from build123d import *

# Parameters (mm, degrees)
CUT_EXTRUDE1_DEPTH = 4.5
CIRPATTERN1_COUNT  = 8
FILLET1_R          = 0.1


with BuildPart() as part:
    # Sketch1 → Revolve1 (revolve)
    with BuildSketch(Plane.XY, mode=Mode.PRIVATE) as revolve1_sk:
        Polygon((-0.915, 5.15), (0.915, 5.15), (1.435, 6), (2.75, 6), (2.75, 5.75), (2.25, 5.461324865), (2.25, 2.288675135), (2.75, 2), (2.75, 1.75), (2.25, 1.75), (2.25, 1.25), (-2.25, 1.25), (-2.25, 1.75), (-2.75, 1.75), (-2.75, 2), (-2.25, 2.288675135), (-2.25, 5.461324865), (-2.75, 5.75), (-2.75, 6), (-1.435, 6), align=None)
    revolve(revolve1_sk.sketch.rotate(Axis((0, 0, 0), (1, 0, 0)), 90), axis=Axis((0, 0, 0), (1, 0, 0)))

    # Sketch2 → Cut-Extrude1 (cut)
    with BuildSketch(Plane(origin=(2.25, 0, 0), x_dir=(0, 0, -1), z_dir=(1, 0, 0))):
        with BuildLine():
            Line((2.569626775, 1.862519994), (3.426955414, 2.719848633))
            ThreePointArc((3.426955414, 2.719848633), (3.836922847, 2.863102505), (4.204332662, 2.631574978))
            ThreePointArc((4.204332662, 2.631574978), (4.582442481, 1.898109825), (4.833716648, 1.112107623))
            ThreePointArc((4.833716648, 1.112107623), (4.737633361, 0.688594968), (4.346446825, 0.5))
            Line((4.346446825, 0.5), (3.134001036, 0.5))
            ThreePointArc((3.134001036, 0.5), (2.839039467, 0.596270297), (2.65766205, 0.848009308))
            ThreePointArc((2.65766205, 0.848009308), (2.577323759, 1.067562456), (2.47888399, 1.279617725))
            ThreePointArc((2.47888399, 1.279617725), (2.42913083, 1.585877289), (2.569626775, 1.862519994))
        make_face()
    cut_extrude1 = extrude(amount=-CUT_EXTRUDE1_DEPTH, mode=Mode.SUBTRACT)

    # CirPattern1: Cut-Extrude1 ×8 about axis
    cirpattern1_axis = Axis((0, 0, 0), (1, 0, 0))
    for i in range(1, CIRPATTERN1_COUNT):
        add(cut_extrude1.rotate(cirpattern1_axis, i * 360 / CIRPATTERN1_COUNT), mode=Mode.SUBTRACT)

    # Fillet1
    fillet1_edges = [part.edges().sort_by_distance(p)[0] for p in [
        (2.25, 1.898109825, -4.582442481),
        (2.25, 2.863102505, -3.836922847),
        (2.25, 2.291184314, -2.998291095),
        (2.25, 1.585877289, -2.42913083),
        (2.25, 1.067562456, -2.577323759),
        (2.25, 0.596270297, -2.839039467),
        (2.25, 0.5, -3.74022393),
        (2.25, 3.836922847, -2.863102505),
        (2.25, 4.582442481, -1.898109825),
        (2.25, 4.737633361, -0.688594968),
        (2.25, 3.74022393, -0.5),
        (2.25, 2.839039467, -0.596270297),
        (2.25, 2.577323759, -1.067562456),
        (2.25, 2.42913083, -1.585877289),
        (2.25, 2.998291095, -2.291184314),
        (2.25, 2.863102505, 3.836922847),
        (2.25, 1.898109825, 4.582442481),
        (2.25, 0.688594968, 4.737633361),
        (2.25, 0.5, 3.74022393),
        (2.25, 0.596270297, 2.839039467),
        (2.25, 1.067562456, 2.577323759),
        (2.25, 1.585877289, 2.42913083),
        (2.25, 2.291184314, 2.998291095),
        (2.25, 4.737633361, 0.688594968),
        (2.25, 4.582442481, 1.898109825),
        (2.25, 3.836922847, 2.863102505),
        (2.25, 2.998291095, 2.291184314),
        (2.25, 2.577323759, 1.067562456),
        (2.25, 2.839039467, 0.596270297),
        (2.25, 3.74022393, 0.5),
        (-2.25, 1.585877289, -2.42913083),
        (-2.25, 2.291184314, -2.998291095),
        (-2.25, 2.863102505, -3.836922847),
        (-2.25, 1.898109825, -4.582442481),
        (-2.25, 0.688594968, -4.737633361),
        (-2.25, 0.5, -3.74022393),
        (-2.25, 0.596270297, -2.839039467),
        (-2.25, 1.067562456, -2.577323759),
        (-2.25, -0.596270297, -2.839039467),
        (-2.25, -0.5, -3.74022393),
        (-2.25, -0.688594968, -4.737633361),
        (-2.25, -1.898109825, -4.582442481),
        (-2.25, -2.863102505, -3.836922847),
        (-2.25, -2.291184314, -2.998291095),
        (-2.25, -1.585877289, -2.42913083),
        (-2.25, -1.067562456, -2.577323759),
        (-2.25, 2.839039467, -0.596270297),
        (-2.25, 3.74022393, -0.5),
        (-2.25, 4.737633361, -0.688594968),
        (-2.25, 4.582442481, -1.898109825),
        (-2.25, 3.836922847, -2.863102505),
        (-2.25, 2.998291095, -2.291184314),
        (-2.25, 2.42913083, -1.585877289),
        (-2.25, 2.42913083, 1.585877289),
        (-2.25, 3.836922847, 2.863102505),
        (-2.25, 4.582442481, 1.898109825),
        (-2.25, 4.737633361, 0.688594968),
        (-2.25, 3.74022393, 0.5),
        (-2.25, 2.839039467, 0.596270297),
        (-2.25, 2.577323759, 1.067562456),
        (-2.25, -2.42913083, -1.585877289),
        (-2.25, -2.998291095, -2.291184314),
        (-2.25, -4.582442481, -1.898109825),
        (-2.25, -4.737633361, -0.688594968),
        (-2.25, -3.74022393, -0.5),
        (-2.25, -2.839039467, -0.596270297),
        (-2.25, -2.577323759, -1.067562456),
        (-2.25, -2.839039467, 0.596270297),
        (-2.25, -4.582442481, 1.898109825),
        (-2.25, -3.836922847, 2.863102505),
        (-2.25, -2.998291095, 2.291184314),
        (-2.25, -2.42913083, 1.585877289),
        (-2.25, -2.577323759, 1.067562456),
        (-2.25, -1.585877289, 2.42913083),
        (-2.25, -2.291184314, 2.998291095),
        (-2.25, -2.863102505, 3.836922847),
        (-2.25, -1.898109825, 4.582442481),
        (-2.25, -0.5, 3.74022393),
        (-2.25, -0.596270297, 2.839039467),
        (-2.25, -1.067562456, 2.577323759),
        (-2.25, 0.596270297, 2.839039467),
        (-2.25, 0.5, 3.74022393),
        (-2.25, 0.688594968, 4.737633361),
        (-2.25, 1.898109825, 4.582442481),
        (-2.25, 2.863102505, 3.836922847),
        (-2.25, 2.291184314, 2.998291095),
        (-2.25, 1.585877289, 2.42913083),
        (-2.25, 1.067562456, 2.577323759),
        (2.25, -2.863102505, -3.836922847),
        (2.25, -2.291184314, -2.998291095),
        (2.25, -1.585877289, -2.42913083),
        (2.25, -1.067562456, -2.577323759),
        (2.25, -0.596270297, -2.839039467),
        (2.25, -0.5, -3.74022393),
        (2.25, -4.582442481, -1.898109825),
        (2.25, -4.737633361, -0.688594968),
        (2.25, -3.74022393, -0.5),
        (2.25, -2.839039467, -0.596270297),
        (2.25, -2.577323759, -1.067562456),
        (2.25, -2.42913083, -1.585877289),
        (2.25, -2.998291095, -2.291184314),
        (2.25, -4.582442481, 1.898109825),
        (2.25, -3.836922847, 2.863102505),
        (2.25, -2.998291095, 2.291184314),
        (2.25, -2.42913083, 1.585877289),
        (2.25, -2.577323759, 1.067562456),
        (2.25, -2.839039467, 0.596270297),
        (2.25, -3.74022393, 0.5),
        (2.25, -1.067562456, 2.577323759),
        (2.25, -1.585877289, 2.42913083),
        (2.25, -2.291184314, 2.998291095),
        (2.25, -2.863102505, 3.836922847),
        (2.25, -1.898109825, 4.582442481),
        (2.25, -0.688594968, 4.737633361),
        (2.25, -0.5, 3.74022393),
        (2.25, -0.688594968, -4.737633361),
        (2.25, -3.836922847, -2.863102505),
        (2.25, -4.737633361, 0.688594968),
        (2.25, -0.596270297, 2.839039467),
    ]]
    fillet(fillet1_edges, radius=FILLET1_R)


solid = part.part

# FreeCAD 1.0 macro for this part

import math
import FreeCAD as App
import Part
import Sketcher
from FreeCAD import Vector
Q = App.Units.Quantity


def edges_at(feature, points):
    """Names of the edges that pass closest to the given points."""
    edges = feature.Shape.Edges
    near = lambda p: min(range(len(edges)), key=lambda i: edges[i].distToShape(Part.Vertex(*p))[0])
    return sorted({f"Edge{near(p) + 1}" for p in points})

doc = App.newDocument("Part")
params = doc.addObject("Spreadsheet::Sheet", "Params")
for row, (alias, value) in enumerate([
    ("sketch1_width", "0.5 mm"),
    ("sketch1_width2", "4.5 mm"),
    ("sketch1_width3", "1.83 mm"),
    ("sketch1_height", "0.25 mm"),
    ("revolution_angle", "360 deg"),
    ("sketch2_radius", "0.5 mm"),
    ("sketch2_radius2", "4.96 mm"),
    ("pocket1_length", "4.5 mm"),
    ("fillet_radius", "0.1 mm"),
], start=1):
    params.set(f"A{row}", alias)
    params.set(f"B{row}", "=" + value)
    params.setAlias(f"B{row}", alias)

body = doc.addObject("PartDesign::Body", "Body")

# Sketch on XY plane
sketch1 = body.newObject("Sketcher::SketchObject", "Sketch")
sketch1.AttachmentSupport = (doc.getObject("XY_Plane"), [""])
sketch1.MapMode = "FlatFace"
sketch1.addGeometry([
    Part.LineSegment(Vector(0.915, 5.15, 0), Vector(-0.915, 5.15, 0)),  # 0
    Part.LineSegment(Vector(-0.915, 5.15, 0), Vector(-1.435, 6, 0)),  # 1
    Part.LineSegment(Vector(-1.435, 6, 0), Vector(-2.75, 6, 0)),  # 2
    Part.LineSegment(Vector(-2.75, 6, 0), Vector(-2.75, 5.75, 0)),  # 3
    Part.LineSegment(Vector(-2.75, 5.75, 0), Vector(-2.25, 5.461325, 0)),  # 4
    Part.LineSegment(Vector(-2.25, 5.461325, 0), Vector(-2.25, 2.288675, 0)),  # 5
    Part.LineSegment(Vector(-2.25, 2.288675, 0), Vector(-2.75, 2, 0)),  # 6
    Part.LineSegment(Vector(-2.75, 2, 0), Vector(-2.75, 1.75, 0)),  # 7
    Part.LineSegment(Vector(-2.75, 1.75, 0), Vector(-2.25, 1.75, 0)),  # 8
    Part.LineSegment(Vector(-2.25, 1.75, 0), Vector(-2.25, 1.25, 0)),  # 9
    Part.LineSegment(Vector(-2.25, 1.25, 0), Vector(2.25, 1.25, 0)),  # 10
    Part.LineSegment(Vector(2.25, 1.25, 0), Vector(2.25, 1.75, 0)),  # 11
    Part.LineSegment(Vector(2.25, 1.75, 0), Vector(2.75, 1.75, 0)),  # 12
    Part.LineSegment(Vector(2.75, 1.75, 0), Vector(2.75, 2, 0)),  # 13
    Part.LineSegment(Vector(2.75, 2, 0), Vector(2.25, 2.288675, 0)),  # 14
    Part.LineSegment(Vector(2.25, 2.288675, 0), Vector(2.25, 5.461325, 0)),  # 15
    Part.LineSegment(Vector(2.25, 5.461325, 0), Vector(2.75, 5.75, 0)),  # 16
    Part.LineSegment(Vector(2.75, 5.75, 0), Vector(2.75, 6, 0)),  # 17
    Part.LineSegment(Vector(2.75, 6, 0), Vector(1.435, 6, 0)),  # 18
    Part.LineSegment(Vector(1.435, 6, 0), Vector(0.915, 5.15, 0)),  # 19
], False)
sketch1.addConstraint([
    Sketcher.Constraint("Coincident", 0, 2, 1, 1),
    Sketcher.Constraint("Coincident", 1, 2, 2, 1),
    Sketcher.Constraint("Coincident", 2, 2, 3, 1),
    Sketcher.Constraint("Coincident", 3, 2, 4, 1),
    Sketcher.Constraint("Coincident", 4, 2, 5, 1),
    Sketcher.Constraint("Coincident", 5, 2, 6, 1),
    Sketcher.Constraint("Coincident", 6, 2, 7, 1),
    Sketcher.Constraint("Coincident", 7, 2, 8, 1),
    Sketcher.Constraint("Coincident", 8, 2, 9, 1),
    Sketcher.Constraint("Coincident", 9, 2, 10, 1),
    Sketcher.Constraint("Coincident", 10, 2, 11, 1),
    Sketcher.Constraint("Coincident", 11, 2, 12, 1),
    Sketcher.Constraint("Coincident", 12, 2, 13, 1),
    Sketcher.Constraint("Coincident", 13, 2, 14, 1),
    Sketcher.Constraint("Coincident", 14, 2, 15, 1),
    Sketcher.Constraint("Coincident", 15, 2, 16, 1),
    Sketcher.Constraint("Coincident", 16, 2, 17, 1),
    Sketcher.Constraint("Coincident", 17, 2, 18, 1),
    Sketcher.Constraint("Coincident", 18, 2, 19, 1),
    Sketcher.Constraint("Coincident", 19, 2, 0, 1),
    Sketcher.Constraint("Horizontal", 0),
    Sketcher.Constraint("Horizontal", 2),
    Sketcher.Constraint("Vertical", 3),
    Sketcher.Constraint("Vertical", 5),
    Sketcher.Constraint("Vertical", 7),
    Sketcher.Constraint("Horizontal", 8),
    Sketcher.Constraint("Vertical", 9),
    Sketcher.Constraint("Horizontal", 10),
    Sketcher.Constraint("Vertical", 11),
    Sketcher.Constraint("Horizontal", 12),
    Sketcher.Constraint("Vertical", 13),
    Sketcher.Constraint("Vertical", 15),
    Sketcher.Constraint("Vertical", 17),
    Sketcher.Constraint("Horizontal", 18),
    Sketcher.Constraint("Symmetric", 8, 2, 11, 2, -2),
    Sketcher.Constraint("Symmetric", 6, 2, 13, 2, -2),
    Sketcher.Constraint("Symmetric", 5, 2, 14, 2, -2),
    Sketcher.Constraint("Symmetric", 3, 2, 16, 2, -2),
    Sketcher.Constraint("Symmetric", 1, 2, 18, 2, -2),
    Sketcher.Constraint("Parallel", 4, 14),
    Sketcher.Constraint("Parallel", 6, 16),
    Sketcher.Constraint("Vertical", 3, 2, 6, 2),
    Sketcher.Constraint("Vertical", 5, 2, 8, 2),
    Sketcher.Constraint("Equal", 3, 7),
    Sketcher.Constraint("Equal", 12, 9),
    Sketcher.Constraint("Equal", 1, 19),
    Sketcher.Constraint("Angle", 4, Q("-30 deg")),
    Sketcher.Constraint("DistanceX", 8, 1, 8, 2, 0.5),
    Sketcher.Constraint("DistanceX", 10, 1, 10, 2, 4.5),
    Sketcher.Constraint("DistanceY", -1, 1, 1, 2, 6.0),
    Sketcher.Constraint("DistanceY", -1, 1, 6, 2, 2.0),
    Sketcher.Constraint("DistanceX", 0, 2, 0, 1, 1.83),
    Sketcher.Constraint("DistanceY", 3, 2, 3, 1, 0.25),
    Sketcher.Constraint("DistanceY", 0, 2, 3, 2, 0.6),
    Sketcher.Constraint("DistanceX", 2, 2, 2, 1, 1.315),
])
sketch1.setExpression("Constraints[47]", "Params.sketch1_width")
sketch1.setExpression("Constraints[48]", "Params.sketch1_width2")
sketch1.setExpression("Constraints[51]", "Params.sketch1_width3")
sketch1.setExpression("Constraints[52]", "Params.sketch1_height")
revolution = body.newObject("PartDesign::Revolution", "Revolution")
revolution.Profile = sketch1
revolution.ReferenceAxis = (sketch1, ["H_Axis"])
revolution.setExpression("Angle", "Params.revolution_angle")

# Sketch on YZ plane
sketch2 = body.newObject("Sketcher::SketchObject", "Sketch001")
sketch2.AttachmentSupport = (doc.getObject("YZ_Plane"), [""])
sketch2.MapMode = "FlatFace"
sketch2.AttachmentOffset = App.Placement(Vector(0, 0, 2.25), App.Rotation())
sketch2.addGeometry([
    Part.LineSegment(Vector(2.719849, -3.426955, 0), Vector(1.86252, -2.569627, 0)),  # 0
    Part.ArcOfCircle(Part.Circle(Vector(1.508967, -2.92318, 0), Vector(0, 0, 1), 0.5), math.radians(45), math.radians(117.303108)),  # 1
    Part.ArcOfCircle(Part.Circle(Vector(0, 0, 0), Vector(0, 0, 1), 2.789675), math.radians(-72.303108), math.radians(-62.696892)),  # 2
    Part.ArcOfCircle(Part.Circle(Vector(1, -3.134001, 0), Vector(0, 0, 1), 0.5), math.radians(107.696892), math.radians(180)),  # 3
    Part.LineSegment(Vector(0.5, -3.134001, 0), Vector(0.5, -4.346447, 0)),  # 4
    Part.ArcOfCircle(Part.Circle(Vector(1, -4.346447, 0), Vector(0, 0, 1), 0.5), math.radians(180), math.radians(282.956736)),  # 5
    Part.ArcOfCircle(Part.Circle(Vector(0, 0, 0), Vector(0, 0, 1), 4.96), math.radians(-77.043264), math.radians(-57.956736)),  # 6
    Part.ArcOfCircle(Part.Circle(Vector(2.366295, -3.780509, 0), Vector(0, 0, 1), 0.5), math.radians(-57.956736), math.radians(45)),  # 7
], False)
sketch2.addConstraint([
    Sketcher.Constraint("Tangent", 0, 2, 1, 1),
    Sketcher.Constraint("Tangent", 1, 2, 2, 2),
    Sketcher.Constraint("Tangent", 2, 1, 3, 1),
    Sketcher.Constraint("Tangent", 3, 2, 4, 1),
    Sketcher.Constraint("Tangent", 4, 2, 5, 1),
    Sketcher.Constraint("Tangent", 5, 2, 6, 1),
    Sketcher.Constraint("Tangent", 6, 2, 7, 1),
    Sketcher.Constraint("Tangent", 7, 2, 0, 1),
    Sketcher.Constraint("Vertical", 4),
    Sketcher.Constraint("Coincident", 2, 3, -1, 1),
    Sketcher.Constraint("Coincident", 6, 3, -1, 1),
    Sketcher.Constraint("Equal", 1, 3),
    Sketcher.Constraint("Equal", 3, 5),
    Sketcher.Constraint("Equal", 5, 7),
    Sketcher.Constraint("Radius", 1, 0.5),
    Sketcher.Constraint("Angle", 0, Q("135 deg")),
    Sketcher.Constraint("Radius", 6, 4.96),
    Sketcher.Constraint("DistanceX", -1, 1, 3, 3, 1.0),
    Sketcher.Constraint("DistanceY", 3, 3, -1, 1, 3.134001),
    Sketcher.Constraint("DistanceY", 1, 3, -1, 1, 2.92318),
])
sketch2.setExpression("Constraints[14]", "Params.sketch2_radius")
sketch2.setExpression("Constraints[16]", "Params.sketch2_radius2")
pocket1 = body.newObject("PartDesign::Pocket", "Pocket")
pocket1.Profile = sketch2
pocket1.setExpression("Length", "Params.pocket1_length")
doc.recompute()

polarpattern = body.newObject("PartDesign::PolarPattern", "PolarPattern")
polarpattern.Originals = [pocket1]
polarpattern.Axis = (doc.getObject("X_Axis"), [""])
polarpattern.Angle = 360
polarpattern.Occurrences = 8
body.Tip = polarpattern
doc.recompute()

fillet = body.newObject("PartDesign::Fillet", "Fillet")
fillet.Base = (polarpattern, edges_at(polarpattern, [
    (2.25, 1.898, -4.582),
    (2.25, 2.863, -3.837),
    (2.25, 2.291, -2.998),
    (2.25, 1.586, -2.429),
    (2.25, 1.068, -2.577),
    (2.25, 0.596, -2.839),
    (2.25, 0.5, -3.74),
    (2.25, 3.837, -2.863),
    (2.25, 4.582, -1.898),
    (2.25, 4.738, -0.689),
    (2.25, 3.74, -0.5),
    (2.25, 2.839, -0.596),
    (2.25, 2.577, -1.068),
    (2.25, 2.429, -1.586),
    (2.25, 2.998, -2.291),
    (2.25, 2.863, 3.837),
    (2.25, 1.898, 4.582),
    (2.25, 0.689, 4.738),
    (2.25, 0.5, 3.74),
    (2.25, 0.596, 2.839),
    (2.25, 1.068, 2.577),
    (2.25, 1.586, 2.429),
    (2.25, 2.291, 2.998),
    (2.25, 4.738, 0.689),
    (2.25, 4.582, 1.898),
    (2.25, 3.837, 2.863),
    (2.25, 2.998, 2.291),
    (2.25, 2.577, 1.068),
    (2.25, 2.839, 0.596),
    (2.25, 3.74, 0.5),
    (-2.25, 1.586, -2.429),
    (-2.25, 2.291, -2.998),
    (-2.25, 2.863, -3.837),
    (-2.25, 1.898, -4.582),
    (-2.25, 0.689, -4.738),
    (-2.25, 0.5, -3.74),
    (-2.25, 0.596, -2.839),
    (-2.25, 1.068, -2.577),
    (-2.25, -0.596, -2.839),
    (-2.25, -0.5, -3.74),
    (-2.25, -0.689, -4.738),
    (-2.25, -1.898, -4.582),
    (-2.25, -2.863, -3.837),
    (-2.25, -2.291, -2.998),
    (-2.25, -1.586, -2.429),
    (-2.25, -1.068, -2.577),
    (-2.25, 2.839, -0.596),
    (-2.25, 3.74, -0.5),
    (-2.25, 4.738, -0.689),
    (-2.25, 4.582, -1.898),
    (-2.25, 3.837, -2.863),
    (-2.25, 2.998, -2.291),
    (-2.25, 2.429, -1.586),
    (-2.25, 2.429, 1.586),
    (-2.25, 3.837, 2.863),
    (-2.25, 4.582, 1.898),
    (-2.25, 4.738, 0.689),
    (-2.25, 3.74, 0.5),
    (-2.25, 2.839, 0.596),
    (-2.25, 2.577, 1.068),
    (-2.25, -2.429, -1.586),
    (-2.25, -2.998, -2.291),
    (-2.25, -4.582, -1.898),
    (-2.25, -4.738, -0.689),
    (-2.25, -3.74, -0.5),
    (-2.25, -2.839, -0.596),
    (-2.25, -2.577, -1.068),
    (-2.25, -2.839, 0.596),
    (-2.25, -4.582, 1.898),
    (-2.25, -3.837, 2.863),
    (-2.25, -2.998, 2.291),
    (-2.25, -2.429, 1.586),
    (-2.25, -2.577, 1.068),
    (-2.25, -1.586, 2.429),
    (-2.25, -2.291, 2.998),
    (-2.25, -2.863, 3.837),
    (-2.25, -1.898, 4.582),
    (-2.25, -0.5, 3.74),
    (-2.25, -0.596, 2.839),
    (-2.25, -1.068, 2.577),
    (-2.25, 0.596, 2.839),
    (-2.25, 0.5, 3.74),
    (-2.25, 0.689, 4.738),
    (-2.25, 1.898, 4.582),
    (-2.25, 2.863, 3.837),
    (-2.25, 2.291, 2.998),
    (-2.25, 1.586, 2.429),
    (-2.25, 1.068, 2.577),
    (2.25, -2.863, -3.837),
    (2.25, -2.291, -2.998),
    (2.25, -1.586, -2.429),
    (2.25, -1.068, -2.577),
    (2.25, -0.596, -2.839),
    (2.25, -0.5, -3.74),
    (2.25, -4.582, -1.898),
    (2.25, -4.738, -0.689),
    (2.25, -3.74, -0.5),
    (2.25, -2.839, -0.596),
    (2.25, -2.577, -1.068),
    (2.25, -2.429, -1.586),
    (2.25, -2.998, -2.291),
    (2.25, -4.582, 1.898),
    (2.25, -3.837, 2.863),
    (2.25, -2.998, 2.291),
    (2.25, -2.429, 1.586),
    (2.25, -2.577, 1.068),
    (2.25, -2.839, 0.596),
    (2.25, -3.74, 0.5),
    (2.25, -1.068, 2.577),
    (2.25, -1.586, 2.429),
    (2.25, -2.291, 2.998),
    (2.25, -2.863, 3.837),
    (2.25, -1.898, 4.582),
    (2.25, -0.689, 4.738),
    (2.25, -0.5, 3.74),
    (2.25, -0.689, -4.738),
    (2.25, -3.837, -2.863),
    (2.25, -4.738, 0.689),
    (2.25, -0.596, 2.839),
]))
fillet.setExpression("Radius", "Params.fillet_radius")

doc.recompute()
